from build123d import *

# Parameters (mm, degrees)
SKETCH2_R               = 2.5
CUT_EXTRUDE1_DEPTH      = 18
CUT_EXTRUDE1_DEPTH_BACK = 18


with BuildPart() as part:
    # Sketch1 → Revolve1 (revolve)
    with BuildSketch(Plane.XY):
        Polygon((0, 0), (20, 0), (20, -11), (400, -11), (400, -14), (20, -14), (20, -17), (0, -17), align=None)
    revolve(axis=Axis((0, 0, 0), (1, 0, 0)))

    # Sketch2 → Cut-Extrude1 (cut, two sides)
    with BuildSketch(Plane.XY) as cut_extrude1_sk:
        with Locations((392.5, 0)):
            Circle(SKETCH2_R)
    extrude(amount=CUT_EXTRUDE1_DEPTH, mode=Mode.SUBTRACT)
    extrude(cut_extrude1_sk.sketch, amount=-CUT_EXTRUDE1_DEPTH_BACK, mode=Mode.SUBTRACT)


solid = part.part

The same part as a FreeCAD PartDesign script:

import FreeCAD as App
import Part
import Sketcher
from FreeCAD import Vector
Q = App.Units.Quantity


def add_polygon(sketch, points):
    """Adds a closed chain of lines whose ends are joined by coincident constraints."""
    first, n = sketch.GeometryCount, len(points)
    for a, b in zip(points, points[1:] + points[:1]):
        sketch.addGeometry(Part.LineSegment(App.Vector(*a, 0), App.Vector(*b, 0)), False)
    for i in range(n):
        sketch.addConstraint(Sketcher.Constraint("Coincident", first + i, 2, first + (i + 1) % n, 1))

doc = App.newDocument("Part")
body = doc.addObject("PartDesign::Body", "Body")

# Sketch on XY plane
sketch1 = body.newObject("Sketcher::SketchObject", "Sketch")
sketch1.AttachmentSupport = (doc.getObject("XY_Plane"), [""])
sketch1.MapMode = "FlatFace"
add_polygon(sketch1, [(20, 0), (0, 0), (0, -17), (20, -17), (20, -14), (400, -14), (400, -11), (20, -11)])  # lines 0-7
sketch1.addConstraint([
    Sketcher.Constraint("Horizontal", 0),
    Sketcher.Constraint("Vertical", 1),
    Sketcher.Constraint("Horizontal", 2),
    Sketcher.Constraint("Vertical", 3),
    Sketcher.Constraint("Horizontal", 4),
    Sketcher.Constraint("Vertical", 5),
    Sketcher.Constraint("Horizontal", 6),
    Sketcher.Constraint("Vertical", 7),
    Sketcher.Constraint("Coincident", 0, 2, -1, 1),
    Sketcher.Constraint("Vertical", 3, 2, 6, 2),
    Sketcher.Constraint("Equal", 3, 5),
    Sketcher.Constraint("DistanceX", 0, 2, 0, 1, Q("20 mm")),
    Sketcher.Constraint("DistanceX", 4, 1, 4, 2, Q("380 mm")),
    Sketcher.Constraint("DistanceY", 1, 2, 1, 1, Q("17 mm")),
    Sketcher.Constraint("DistanceY", 3, 1, 3, 2, Q("3 mm")),
])
revolution = body.newObject("PartDesign::Revolution", "Revolution")
revolution.Profile = sketch1
revolution.ReferenceAxis = (sketch1, ["H_Axis"])
revolution.Angle = 360

# Sketch on XY plane
sketch2 = body.newObject("Sketcher::SketchObject", "Sketch001")
sketch2.AttachmentSupport = (doc.getObject("XY_Plane"), [""])
sketch2.MapMode = "FlatFace"
sketch2.addGeometry(Part.Circle(Vector(392.5, 0, 0), Vector(0, 0, 1), 2.5), False)
sketch2.addConstraint([
    Sketcher.Constraint("PointOnObject", 0, 3, -1),
    Sketcher.Constraint("Diameter", 0, Q("5 mm")),
    Sketcher.Constraint("DistanceX", -1, 1, 0, 3, Q("392.5 mm")),
])
pocket1 = body.newObject("PartDesign::Pocket", "Pocket")
pocket1.Profile = sketch2
pocket1.Type = "ThroughAll"
pocket1.Midplane = True

doc.recompute()
